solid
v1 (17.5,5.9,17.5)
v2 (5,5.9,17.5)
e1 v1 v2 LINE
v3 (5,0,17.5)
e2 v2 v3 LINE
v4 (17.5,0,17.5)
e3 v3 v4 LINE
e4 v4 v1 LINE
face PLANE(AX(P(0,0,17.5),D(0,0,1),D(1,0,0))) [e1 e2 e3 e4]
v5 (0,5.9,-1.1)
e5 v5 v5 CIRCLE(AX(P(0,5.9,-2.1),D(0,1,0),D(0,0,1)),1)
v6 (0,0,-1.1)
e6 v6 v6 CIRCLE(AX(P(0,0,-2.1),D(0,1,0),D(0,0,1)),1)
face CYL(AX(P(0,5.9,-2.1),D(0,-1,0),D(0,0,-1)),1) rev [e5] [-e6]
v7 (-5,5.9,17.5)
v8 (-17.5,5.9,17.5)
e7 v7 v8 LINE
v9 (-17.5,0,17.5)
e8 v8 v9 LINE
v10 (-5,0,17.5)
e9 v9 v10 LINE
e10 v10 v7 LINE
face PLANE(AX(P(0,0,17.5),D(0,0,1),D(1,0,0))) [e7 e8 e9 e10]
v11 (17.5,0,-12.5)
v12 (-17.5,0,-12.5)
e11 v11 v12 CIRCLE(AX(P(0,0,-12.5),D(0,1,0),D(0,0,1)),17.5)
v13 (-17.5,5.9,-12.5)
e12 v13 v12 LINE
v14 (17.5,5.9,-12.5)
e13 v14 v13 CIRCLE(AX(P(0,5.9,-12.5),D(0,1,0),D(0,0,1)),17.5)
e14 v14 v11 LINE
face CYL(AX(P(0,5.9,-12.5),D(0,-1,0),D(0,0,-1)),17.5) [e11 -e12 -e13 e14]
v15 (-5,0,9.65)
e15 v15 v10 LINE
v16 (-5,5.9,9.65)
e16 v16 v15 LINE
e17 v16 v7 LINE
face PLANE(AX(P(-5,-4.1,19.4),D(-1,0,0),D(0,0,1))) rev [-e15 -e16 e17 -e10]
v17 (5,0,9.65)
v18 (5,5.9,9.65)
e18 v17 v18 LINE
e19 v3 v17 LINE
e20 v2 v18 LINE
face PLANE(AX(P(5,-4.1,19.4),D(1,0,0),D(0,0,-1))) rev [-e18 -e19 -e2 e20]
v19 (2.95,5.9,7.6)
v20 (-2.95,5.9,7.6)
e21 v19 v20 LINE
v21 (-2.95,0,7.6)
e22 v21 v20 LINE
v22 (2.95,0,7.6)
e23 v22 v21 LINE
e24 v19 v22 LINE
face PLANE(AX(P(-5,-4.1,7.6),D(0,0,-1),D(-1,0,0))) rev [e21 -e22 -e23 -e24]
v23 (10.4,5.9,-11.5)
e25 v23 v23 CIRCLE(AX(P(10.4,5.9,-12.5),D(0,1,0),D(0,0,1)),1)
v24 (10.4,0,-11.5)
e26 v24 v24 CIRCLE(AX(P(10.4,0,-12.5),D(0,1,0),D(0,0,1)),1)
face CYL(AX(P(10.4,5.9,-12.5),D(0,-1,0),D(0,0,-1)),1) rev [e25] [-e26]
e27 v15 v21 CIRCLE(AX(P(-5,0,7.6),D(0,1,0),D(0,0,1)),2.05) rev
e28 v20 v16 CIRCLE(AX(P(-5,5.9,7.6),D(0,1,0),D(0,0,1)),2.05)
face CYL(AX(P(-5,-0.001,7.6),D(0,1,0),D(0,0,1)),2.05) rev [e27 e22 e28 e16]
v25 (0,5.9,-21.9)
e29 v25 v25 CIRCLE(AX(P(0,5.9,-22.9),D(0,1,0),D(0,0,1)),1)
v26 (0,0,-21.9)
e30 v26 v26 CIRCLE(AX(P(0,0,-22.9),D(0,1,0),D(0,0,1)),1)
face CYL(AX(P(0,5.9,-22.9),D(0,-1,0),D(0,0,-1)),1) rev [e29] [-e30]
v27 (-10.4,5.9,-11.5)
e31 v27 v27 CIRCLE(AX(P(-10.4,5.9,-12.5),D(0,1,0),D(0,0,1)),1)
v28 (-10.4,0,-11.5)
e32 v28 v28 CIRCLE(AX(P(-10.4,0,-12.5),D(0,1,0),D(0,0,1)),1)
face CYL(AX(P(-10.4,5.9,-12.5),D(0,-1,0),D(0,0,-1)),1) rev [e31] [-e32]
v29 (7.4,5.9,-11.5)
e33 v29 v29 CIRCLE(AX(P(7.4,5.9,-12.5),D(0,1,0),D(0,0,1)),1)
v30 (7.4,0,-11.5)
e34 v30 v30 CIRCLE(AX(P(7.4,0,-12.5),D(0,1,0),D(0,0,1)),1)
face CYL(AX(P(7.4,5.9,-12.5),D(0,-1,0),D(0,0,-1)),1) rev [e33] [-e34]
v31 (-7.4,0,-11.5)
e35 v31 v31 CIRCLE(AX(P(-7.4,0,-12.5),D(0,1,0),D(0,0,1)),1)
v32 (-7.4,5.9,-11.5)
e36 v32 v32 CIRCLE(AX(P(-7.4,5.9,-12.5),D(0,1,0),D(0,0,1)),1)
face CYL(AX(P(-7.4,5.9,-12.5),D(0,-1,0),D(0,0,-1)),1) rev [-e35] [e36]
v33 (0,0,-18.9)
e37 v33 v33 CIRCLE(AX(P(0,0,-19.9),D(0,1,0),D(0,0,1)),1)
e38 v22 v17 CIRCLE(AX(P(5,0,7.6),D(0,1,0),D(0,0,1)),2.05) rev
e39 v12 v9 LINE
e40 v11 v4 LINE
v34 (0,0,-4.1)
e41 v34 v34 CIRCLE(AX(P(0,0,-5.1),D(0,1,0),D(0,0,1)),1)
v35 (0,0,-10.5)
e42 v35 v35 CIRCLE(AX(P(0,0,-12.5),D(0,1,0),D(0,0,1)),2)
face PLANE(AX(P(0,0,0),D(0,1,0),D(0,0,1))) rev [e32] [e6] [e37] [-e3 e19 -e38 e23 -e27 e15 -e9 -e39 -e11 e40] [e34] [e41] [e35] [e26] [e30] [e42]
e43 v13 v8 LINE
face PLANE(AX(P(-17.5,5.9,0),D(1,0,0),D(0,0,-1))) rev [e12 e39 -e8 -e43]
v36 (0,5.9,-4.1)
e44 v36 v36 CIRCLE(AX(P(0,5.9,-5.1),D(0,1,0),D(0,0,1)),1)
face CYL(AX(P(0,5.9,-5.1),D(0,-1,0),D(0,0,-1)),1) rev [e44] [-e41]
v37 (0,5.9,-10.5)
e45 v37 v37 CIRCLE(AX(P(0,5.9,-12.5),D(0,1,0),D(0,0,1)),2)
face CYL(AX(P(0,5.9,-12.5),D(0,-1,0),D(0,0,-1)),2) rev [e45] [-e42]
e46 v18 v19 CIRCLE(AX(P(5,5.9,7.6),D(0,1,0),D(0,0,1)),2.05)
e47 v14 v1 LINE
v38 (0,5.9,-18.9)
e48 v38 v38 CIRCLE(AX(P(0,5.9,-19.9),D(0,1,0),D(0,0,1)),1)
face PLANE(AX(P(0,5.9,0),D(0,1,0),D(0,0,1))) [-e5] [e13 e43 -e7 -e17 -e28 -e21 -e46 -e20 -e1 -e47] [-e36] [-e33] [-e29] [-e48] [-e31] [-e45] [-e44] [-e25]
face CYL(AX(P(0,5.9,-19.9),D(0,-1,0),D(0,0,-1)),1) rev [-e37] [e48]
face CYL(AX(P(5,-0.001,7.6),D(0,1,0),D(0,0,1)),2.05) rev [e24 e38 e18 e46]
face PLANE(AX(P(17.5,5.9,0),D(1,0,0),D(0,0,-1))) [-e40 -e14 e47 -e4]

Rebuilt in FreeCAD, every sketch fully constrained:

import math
import FreeCAD as App
import Part
import Sketcher

doc = App.newDocument("Part")
body = doc.addObject("PartDesign::Body", "Body")

# Sketch on XZ plane
sketch1 = body.newObject("Sketcher::SketchObject", "Sketch")
sketch1.AttachmentSupport = (doc.getObject("XZ_Plane"), [""])
sketch1.MapMode = "FlatFace"
sketch1.addGeometry([
    Part.ArcOfCircle(Part.Circle(App.Vector(0, -12.5, 0), App.Vector(0, 0, 1), 17.5), math.radians(180), math.radians(360)),  # 0
    Part.LineSegment(App.Vector(-17.5, -12.5, 0), App.Vector(-17.5, 12.5, 0)),  # 1
    Part.LineSegment(App.Vector(-17.5, 12.5, 0), App.Vector(17.5, 12.5, 0)),  # 2
    Part.LineSegment(App.Vector(17.5, 12.5, 0), App.Vector(17.5, -12.5, 0)),  # 3
    Part.Circle(App.Vector(0, -2.1, 0), App.Vector(0, 0, 1), 1),  # 4
    Part.Circle(App.Vector(0, -5.1, 0), App.Vector(0, 0, 1), 1),  # 5
    Part.Circle(App.Vector(-10.4, -12.5, 0), App.Vector(0, 0, 1), 1),  # 6
    Part.Circle(App.Vector(-7.4, -12.5, 0), App.Vector(0, 0, 1), 1),  # 7
    Part.Circle(App.Vector(0, -12.5, 0), App.Vector(0, 0, 1), 2),  # 8
    Part.Circle(App.Vector(7.4, -12.5, 0), App.Vector(0, 0, 1), 1),  # 9
    Part.Circle(App.Vector(10.4, -12.5, 0), App.Vector(0, 0, 1), 1),  # 10
    Part.Circle(App.Vector(0, -19.9, 0), App.Vector(0, 0, 1), 1),  # 11
    Part.Circle(App.Vector(0, -22.9, 0), App.Vector(0, 0, 1), 1),  # 12
], False)
sketch1.addConstraint([
    Sketcher.Constraint("Tangent", 0, 1, 1, 1),
    Sketcher.Constraint("Coincident", 1, 2, 2, 1),
    Sketcher.Constraint("Coincident", 2, 2, 3, 1),
    Sketcher.Constraint("Tangent", 3, 2, 0, 2),
    Sketcher.Constraint("Vertical", 1),
    Sketcher.Constraint("Horizontal", 2),
    Sketcher.Constraint("Vertical", 3),
    Sketcher.Constraint("Coincident", 8, 3, 0, 3),
    Sketcher.Constraint("Equal", 4, 5),
    Sketcher.Constraint("Equal", 5, 6),
    Sketcher.Constraint("Equal", 6, 7),
    Sketcher.Constraint("Equal", 7, 9),
    Sketcher.Constraint("Equal", 9, 10),
    Sketcher.Constraint("Equal", 10, 11),
    Sketcher.Constraint("Equal", 11, 12),
    Sketcher.Constraint("Symmetric", 0, 1, 2, 2, -1, 1),
    Sketcher.Constraint("Symmetric", 7, 3, 9, 3, -2),
    Sketcher.Constraint("Symmetric", 6, 3, 10, 3, -2),
    Sketcher.Constraint("PointOnObject", 4, 3, -2),
    Sketcher.Constraint("PointOnObject", 5, 3, -2),
    Sketcher.Constraint("PointOnObject", 11, 3, -2),
    Sketcher.Constraint("PointOnObject", 12, 3, -2),
    Sketcher.Constraint("Horizontal", 0, 3, 6, 3),
    Sketcher.Constraint("Horizontal", 6, 3, 7, 3),
    Sketcher.Constraint("Diameter", 4, 2.0),
    Sketcher.Constraint("Diameter", 8, 4.0),
    Sketcher.Constraint("Radius", 0, 17.5),
    Sketcher.Constraint("DistanceY", 1, 1, 1, 2, 25.0),
    Sketcher.Constraint("DistanceY", 5, 3, 4, 3, 3.0),
    Sketcher.Constraint("DistanceX", 6, 3, 7, 3, 3.0),
    Sketcher.Constraint("DistanceY", 12, 3, 11, 3, 3.0),
    Sketcher.Constraint("DistanceY", 4, 3, -1, 1, 2.1),
    Sketcher.Constraint("DistanceX", 6, 3, -1, 1, 10.4),
    Sketcher.Constraint("DistanceY", 11, 3, -1, 1, 19.9),
])
pad1 = body.newObject("PartDesign::Pad", "Pad")
pad1.Profile = sketch1
pad1.Length = 5.9
pad1.Reversed = True

# Sketch on XZ plane
sketch2 = body.newObject("Sketcher::SketchObject", "Sketch001")
sketch2.AttachmentSupport = (doc.getObject("XZ_Plane"), [""])
sketch2.MapMode = "FlatFace"
sketch2.AttachmentOffset = App.Placement(App.Vector(0, 0, -5.9), App.Rotation())
sketch2.addGeometry([
    Part.LineSegment(App.Vector(-5, 8, 0), App.Vector(-5, 19, 0)),
    Part.LineSegment(App.Vector(-5, 19, 0), App.Vector(5, 19, 0)),
    Part.LineSegment(App.Vector(5, 19, 0), App.Vector(5, 8, 0)),
    Part.LineSegment(App.Vector(5, 8, 0), App.Vector(-5, 8, 0)),
], False)
sketch2.addConstraint([
    Sketcher.Constraint("Coincident", 0, 2, 1, 1),
    Sketcher.Constraint("Coincident", 1, 2, 2, 1),
    Sketcher.Constraint("Coincident", 2, 2, 3, 1),
    Sketcher.Constraint("Coincident", 3, 2, 0, 1),
    Sketcher.Constraint("Vertical", 0),
    Sketcher.Constraint("Horizontal", 1),
    Sketcher.Constraint("Vertical", 2),
    Sketcher.Constraint("Horizontal", 3),
    Sketcher.Constraint("DistanceX", 1, 1, 1, 2, 10.0),
    Sketcher.Constraint("DistanceY", 0, 1, 0, 2, 11.8),
    Sketcher.Constraint("DistanceX", 0, 2, -1, 1, 5.0),
    Sketcher.Constraint("DistanceY", -1, 1, 0, 2, 19.4),
])
pocket1 = body.newObject("PartDesign::Pocket", "Pocket")
pocket1.Profile = sketch2
pocket1.Length = 10
pocket1.Reversed = True

# Sketch on XY plane
sketch3 = body.newObject("Sketcher::SketchObject", "Sketch002")
sketch3.AttachmentSupport = (doc.getObject("XY_Plane"), [""])
sketch3.MapMode = "FlatFace"
sketch3.AttachmentOffset = App.Placement(App.Vector(0, 0, 12.5), App.Rotation())
sketch3.addGeometry([
    Part.LineSegment(App.Vector(-18, 6, 0), App.Vector(-18, 0, 0)),  # 0
    Part.LineSegment(App.Vector(-18, 0, 0), App.Vector(-5, 0, 0)),  # 1
    Part.LineSegment(App.Vector(-5, 0, 0), App.Vector(-5, 6, 0)),  # 2
    Part.LineSegment(App.Vector(-5, 6, 0), App.Vector(-18, 6, 0)),  # 3
    Part.LineSegment(App.Vector(5, 6, 0), App.Vector(5, 0, 0)),  # 4
    Part.LineSegment(App.Vector(5, 0, 0), App.Vector(18, 0, 0)),  # 5
    Part.LineSegment(App.Vector(18, 0, 0), App.Vector(18, 6, 0)),  # 6
    Part.LineSegment(App.Vector(18, 6, 0), App.Vector(5, 6, 0)),  # 7
], False)
sketch3.addConstraint([
    Sketcher.Constraint("Coincident", 0, 2, 1, 1),
    Sketcher.Constraint("Coincident", 1, 2, 2, 1),
    Sketcher.Constraint("Coincident", 2, 2, 3, 1),
    Sketcher.Constraint("Coincident", 3, 2, 0, 1),
    Sketcher.Constraint("Coincident", 4, 2, 5, 1),
    Sketcher.Constraint("Coincident", 5, 2, 6, 1),
    Sketcher.Constraint("Coincident", 6, 2, 7, 1),
    Sketcher.Constraint("Coincident", 7, 2, 4, 1),
    Sketcher.Constraint("Vertical", 0),
    Sketcher.Constraint("Horizontal", 1),
    Sketcher.Constraint("Vertical", 2),
    Sketcher.Constraint("Horizontal", 3),
    Sketcher.Constraint("Vertical", 4),
    Sketcher.Constraint("Horizontal", 5),
    Sketcher.Constraint("Vertical", 6),
    Sketcher.Constraint("Horizontal", 7),
    Sketcher.Constraint("Symmetric", 1, 2, 4, 2, -1, 1),
    Sketcher.Constraint("Symmetric", 0, 2, 5, 2, -2),
    Sketcher.Constraint("Horizontal", 3, 2, 6, 2),
    Sketcher.Constraint("DistanceX", 1, 1, 1, 2, 12.5),
    Sketcher.Constraint("DistanceY", 0, 2, 0, 1, 5.9),
    Sketcher.Constraint("DistanceX", 1, 2, -1, 1, 5.0),
])
pad2 = body.newObject("PartDesign::Pad", "Pad001")
pad2.Profile = sketch3
pad2.Length = 5

# Sketch on XZ plane
sketch4 = body.newObject("Sketcher::SketchObject", "Sketch003")
sketch4.AttachmentSupport = (doc.getObject("XZ_Plane"), [""])
sketch4.MapMode = "FlatFace"
sketch4.AttachmentOffset = App.Placement(App.Vector(0, 0, -5.9), App.Rotation())
sketch4.addGeometry(Part.Circle(App.Vector(-5, 7.6, 0), App.Vector(0, 0, 1), 2), False)
sketch4.addConstraint([
    Sketcher.Constraint("Diameter", 0, 4.1),
    Sketcher.Constraint("DistanceX", 0, 3, -1, 1, 5.0),
    Sketcher.Constraint("DistanceY", -1, 1, 0, 3, 7.6),
])
pocket2 = body.newObject("PartDesign::Pocket", "Pocket001")
pocket2.Profile = sketch4
pocket2.Type = "UpToFirst"
pocket2.Reversed = True

# Sketch on XZ plane
sketch5 = body.newObject("Sketcher::SketchObject", "Sketch004")
sketch5.AttachmentSupport = (doc.getObject("XZ_Plane"), [""])
sketch5.MapMode = "FlatFace"
sketch5.AttachmentOffset = App.Placement(App.Vector(0, 0, -5.9), App.Rotation())
sketch5.addGeometry(Part.Circle(App.Vector(5, 7.6, 0), App.Vector(0, 0, 1), 2), False)
sketch5.addConstraint([
    Sketcher.Constraint("Diameter", 0, 4.1),
    Sketcher.Constraint("DistanceX", -1, 1, 0, 3, 5.0),
    Sketcher.Constraint("DistanceY", -1, 1, 0, 3, 7.6),
])
pocket3 = body.newObject("PartDesign::Pocket", "Pocket002")
pocket3.Profile = sketch5
pocket3.Type = "UpToFirst"
pocket3.Reversed = True

doc.recompute()
